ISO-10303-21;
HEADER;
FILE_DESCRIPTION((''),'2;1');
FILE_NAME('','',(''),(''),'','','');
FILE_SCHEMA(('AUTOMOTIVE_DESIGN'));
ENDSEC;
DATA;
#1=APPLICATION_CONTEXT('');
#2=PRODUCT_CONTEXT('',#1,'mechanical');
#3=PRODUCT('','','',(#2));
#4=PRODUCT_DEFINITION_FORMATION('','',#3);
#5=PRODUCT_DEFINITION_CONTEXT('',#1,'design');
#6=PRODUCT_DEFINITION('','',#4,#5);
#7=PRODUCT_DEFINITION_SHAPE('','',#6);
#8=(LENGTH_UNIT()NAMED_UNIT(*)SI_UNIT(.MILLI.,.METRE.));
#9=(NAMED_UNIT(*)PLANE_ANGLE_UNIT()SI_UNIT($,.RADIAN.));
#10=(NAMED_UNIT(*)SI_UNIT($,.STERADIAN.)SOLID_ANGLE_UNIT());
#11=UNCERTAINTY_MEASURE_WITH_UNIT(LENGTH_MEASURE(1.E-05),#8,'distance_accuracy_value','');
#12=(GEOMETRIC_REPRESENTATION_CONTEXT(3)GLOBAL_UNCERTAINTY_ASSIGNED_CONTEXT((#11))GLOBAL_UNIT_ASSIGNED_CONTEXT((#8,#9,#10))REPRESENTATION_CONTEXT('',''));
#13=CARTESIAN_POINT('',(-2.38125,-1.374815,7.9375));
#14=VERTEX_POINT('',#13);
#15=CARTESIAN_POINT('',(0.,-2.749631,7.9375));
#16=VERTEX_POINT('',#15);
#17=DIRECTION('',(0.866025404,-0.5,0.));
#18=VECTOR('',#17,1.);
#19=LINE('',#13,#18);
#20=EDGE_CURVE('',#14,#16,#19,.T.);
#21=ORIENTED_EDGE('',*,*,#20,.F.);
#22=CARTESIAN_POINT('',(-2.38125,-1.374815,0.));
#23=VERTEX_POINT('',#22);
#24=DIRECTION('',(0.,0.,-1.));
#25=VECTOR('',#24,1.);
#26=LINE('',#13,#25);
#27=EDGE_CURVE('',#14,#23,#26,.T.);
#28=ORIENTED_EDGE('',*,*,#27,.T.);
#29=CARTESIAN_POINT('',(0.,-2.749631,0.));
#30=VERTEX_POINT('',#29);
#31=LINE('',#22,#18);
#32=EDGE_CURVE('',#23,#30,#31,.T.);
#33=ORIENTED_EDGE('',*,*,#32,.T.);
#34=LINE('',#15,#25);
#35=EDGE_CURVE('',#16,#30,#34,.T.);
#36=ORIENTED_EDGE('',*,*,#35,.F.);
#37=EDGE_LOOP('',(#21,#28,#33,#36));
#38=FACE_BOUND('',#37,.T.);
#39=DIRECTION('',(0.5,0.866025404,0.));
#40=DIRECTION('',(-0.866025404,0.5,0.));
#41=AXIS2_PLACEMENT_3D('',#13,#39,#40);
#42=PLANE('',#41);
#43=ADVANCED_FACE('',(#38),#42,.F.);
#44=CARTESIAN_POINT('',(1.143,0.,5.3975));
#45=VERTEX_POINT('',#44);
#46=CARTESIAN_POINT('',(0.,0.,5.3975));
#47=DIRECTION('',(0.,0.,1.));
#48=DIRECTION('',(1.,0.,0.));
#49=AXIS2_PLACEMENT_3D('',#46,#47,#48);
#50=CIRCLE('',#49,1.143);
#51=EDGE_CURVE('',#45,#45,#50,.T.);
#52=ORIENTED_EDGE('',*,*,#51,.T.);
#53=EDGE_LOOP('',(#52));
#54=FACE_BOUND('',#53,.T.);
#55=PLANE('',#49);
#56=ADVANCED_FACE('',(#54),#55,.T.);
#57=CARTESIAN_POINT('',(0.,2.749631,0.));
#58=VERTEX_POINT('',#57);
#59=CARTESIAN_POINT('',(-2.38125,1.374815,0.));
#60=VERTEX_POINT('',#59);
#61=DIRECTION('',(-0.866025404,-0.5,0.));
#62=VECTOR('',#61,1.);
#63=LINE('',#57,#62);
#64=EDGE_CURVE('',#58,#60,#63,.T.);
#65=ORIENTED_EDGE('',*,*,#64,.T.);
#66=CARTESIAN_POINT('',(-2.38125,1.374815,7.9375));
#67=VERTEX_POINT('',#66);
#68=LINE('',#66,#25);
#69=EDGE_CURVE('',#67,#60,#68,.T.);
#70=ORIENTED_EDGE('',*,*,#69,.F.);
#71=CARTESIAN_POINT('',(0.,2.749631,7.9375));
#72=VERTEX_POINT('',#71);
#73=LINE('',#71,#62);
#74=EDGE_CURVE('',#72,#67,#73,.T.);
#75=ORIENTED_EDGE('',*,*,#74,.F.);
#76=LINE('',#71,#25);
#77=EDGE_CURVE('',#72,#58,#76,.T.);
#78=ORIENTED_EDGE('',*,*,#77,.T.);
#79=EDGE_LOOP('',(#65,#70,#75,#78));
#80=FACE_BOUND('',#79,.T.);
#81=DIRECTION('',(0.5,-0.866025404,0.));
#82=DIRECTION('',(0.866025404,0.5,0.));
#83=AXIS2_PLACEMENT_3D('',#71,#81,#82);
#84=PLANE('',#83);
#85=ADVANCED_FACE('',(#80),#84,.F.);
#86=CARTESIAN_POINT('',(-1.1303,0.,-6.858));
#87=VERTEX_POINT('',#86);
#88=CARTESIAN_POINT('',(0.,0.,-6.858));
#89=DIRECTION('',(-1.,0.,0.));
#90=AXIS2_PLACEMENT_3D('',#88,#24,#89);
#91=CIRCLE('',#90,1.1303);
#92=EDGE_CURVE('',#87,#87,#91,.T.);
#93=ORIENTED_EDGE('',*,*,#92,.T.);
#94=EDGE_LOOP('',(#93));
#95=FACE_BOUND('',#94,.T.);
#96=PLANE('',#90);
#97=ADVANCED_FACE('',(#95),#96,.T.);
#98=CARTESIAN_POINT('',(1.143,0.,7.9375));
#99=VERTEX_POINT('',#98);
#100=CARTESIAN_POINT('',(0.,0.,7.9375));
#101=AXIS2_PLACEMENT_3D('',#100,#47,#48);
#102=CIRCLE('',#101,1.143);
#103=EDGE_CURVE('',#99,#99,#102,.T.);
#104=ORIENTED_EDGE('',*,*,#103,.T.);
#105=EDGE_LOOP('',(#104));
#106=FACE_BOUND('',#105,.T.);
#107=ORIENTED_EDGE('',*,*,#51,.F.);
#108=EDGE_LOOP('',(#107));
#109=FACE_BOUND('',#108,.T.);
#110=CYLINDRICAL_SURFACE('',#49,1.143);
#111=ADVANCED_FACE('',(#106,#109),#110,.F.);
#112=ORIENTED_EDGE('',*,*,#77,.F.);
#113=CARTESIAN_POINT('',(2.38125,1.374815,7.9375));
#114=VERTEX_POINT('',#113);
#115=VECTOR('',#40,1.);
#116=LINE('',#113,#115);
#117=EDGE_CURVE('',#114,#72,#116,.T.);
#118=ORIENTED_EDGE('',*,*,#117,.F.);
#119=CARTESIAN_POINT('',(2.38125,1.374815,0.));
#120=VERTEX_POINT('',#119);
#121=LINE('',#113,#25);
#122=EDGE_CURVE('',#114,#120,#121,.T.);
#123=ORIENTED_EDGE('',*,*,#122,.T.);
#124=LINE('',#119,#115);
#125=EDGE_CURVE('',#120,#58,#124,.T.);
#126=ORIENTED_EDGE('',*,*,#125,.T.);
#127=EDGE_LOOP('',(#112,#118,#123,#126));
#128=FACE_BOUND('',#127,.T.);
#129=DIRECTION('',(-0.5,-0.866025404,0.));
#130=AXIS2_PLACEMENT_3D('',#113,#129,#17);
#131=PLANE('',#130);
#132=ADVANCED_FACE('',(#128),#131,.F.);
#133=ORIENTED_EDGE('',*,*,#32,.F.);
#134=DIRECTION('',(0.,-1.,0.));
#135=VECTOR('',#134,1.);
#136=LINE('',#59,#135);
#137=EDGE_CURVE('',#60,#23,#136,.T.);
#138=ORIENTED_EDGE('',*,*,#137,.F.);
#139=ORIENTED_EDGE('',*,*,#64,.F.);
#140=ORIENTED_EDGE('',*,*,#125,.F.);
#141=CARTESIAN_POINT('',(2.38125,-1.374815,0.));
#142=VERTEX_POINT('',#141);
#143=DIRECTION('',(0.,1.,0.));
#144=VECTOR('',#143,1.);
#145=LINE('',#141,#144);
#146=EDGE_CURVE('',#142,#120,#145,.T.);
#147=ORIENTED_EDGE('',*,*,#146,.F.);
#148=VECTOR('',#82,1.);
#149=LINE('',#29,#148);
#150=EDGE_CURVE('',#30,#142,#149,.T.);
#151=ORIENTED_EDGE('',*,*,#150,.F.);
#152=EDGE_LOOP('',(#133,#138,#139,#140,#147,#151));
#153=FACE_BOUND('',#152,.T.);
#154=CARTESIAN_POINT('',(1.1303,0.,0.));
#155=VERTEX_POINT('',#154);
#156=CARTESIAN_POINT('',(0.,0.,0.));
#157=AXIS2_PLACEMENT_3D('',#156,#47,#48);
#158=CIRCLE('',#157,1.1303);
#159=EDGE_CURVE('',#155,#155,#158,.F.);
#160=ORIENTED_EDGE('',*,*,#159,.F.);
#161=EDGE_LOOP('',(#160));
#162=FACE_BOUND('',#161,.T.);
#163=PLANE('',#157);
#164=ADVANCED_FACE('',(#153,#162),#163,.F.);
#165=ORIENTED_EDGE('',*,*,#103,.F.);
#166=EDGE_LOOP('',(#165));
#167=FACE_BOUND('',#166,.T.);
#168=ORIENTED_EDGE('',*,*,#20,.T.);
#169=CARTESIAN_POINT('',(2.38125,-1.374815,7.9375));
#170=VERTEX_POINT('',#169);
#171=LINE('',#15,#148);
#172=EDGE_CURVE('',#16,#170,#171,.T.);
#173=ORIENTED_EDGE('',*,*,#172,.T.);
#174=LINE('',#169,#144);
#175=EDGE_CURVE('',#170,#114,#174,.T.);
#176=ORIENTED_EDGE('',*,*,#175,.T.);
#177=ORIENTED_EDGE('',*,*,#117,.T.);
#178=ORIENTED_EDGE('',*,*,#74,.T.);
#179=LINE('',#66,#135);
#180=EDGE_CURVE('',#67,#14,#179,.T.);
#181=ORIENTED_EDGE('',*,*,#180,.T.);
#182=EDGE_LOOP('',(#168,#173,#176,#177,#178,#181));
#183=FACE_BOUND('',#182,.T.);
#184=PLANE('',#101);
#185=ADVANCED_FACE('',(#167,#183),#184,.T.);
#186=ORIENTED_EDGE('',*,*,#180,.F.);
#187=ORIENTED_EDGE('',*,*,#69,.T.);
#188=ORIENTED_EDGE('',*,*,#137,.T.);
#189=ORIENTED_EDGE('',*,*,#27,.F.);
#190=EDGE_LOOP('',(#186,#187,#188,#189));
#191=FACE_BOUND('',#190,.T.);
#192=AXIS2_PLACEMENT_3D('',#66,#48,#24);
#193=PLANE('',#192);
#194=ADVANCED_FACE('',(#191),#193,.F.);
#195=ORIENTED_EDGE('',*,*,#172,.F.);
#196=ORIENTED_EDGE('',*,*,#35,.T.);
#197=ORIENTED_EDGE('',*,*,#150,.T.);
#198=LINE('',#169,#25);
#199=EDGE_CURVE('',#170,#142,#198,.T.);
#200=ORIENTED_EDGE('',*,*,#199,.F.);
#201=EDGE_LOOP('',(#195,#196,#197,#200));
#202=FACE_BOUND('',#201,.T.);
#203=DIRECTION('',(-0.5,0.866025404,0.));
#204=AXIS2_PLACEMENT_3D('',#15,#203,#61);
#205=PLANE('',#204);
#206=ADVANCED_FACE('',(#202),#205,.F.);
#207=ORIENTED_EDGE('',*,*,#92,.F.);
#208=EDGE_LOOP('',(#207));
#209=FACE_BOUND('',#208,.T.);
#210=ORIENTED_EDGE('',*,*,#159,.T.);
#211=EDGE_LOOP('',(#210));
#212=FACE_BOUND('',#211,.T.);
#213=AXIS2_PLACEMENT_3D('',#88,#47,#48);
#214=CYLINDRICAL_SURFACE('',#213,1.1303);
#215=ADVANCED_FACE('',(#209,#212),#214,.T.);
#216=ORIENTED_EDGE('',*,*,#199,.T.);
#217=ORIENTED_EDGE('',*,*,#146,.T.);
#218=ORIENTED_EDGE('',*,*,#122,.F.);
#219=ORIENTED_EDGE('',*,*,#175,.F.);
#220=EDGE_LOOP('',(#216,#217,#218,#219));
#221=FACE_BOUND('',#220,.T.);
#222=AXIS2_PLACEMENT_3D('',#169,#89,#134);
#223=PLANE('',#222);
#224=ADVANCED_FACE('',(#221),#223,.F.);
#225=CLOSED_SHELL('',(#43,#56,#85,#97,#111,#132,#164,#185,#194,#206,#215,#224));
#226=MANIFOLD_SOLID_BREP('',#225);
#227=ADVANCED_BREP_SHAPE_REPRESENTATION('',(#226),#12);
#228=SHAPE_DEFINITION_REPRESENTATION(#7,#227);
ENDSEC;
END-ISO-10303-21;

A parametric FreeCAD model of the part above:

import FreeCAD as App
import Part
import Sketcher

V = App.Vector
Q = App.Units.Quantity


def add_polygon(sketch, points):
    """Adds a closed chain of lines whose ends are joined by coincident constraints."""
    first, n = sketch.GeometryCount, len(points)
    for a, b in zip(points, points[1:] + points[:1]):
        sketch.addGeometry(Part.LineSegment(App.Vector(*a, 0), App.Vector(*b, 0)), False)
    for i in range(n):
        sketch.addConstraint(Sketcher.Constraint("Coincident", first + i, 2, first + (i + 1) % n, 1))

doc = App.newDocument("Part")
body = doc.addObject("PartDesign::Body", "Body")

sketch1 = body.newObject("Sketcher::SketchObject", "Sketch")
sketch1.AttachmentSupport = (doc.getObject("XY_Plane"), [""])
sketch1.MapMode = "FlatFace"
add_polygon(sketch1, [(0, 2.7), (-2.4, 1.4), (-2.4, -1.4), (0, -2.7), (2.4, -1.4), (2.4, 1.4)])
sketch1.addConstraint([
    Sketcher.Constraint("Vertical", 1),
    Sketcher.Constraint("Vertical", 4),
    Sketcher.Constraint("Symmetric", 0, 2, 3, 2, -1, 1),
    Sketcher.Constraint("Symmetric", 2, 2, 5, 2, -1, 1),
    Sketcher.Constraint("PointOnObject", 2, 2, -2),
    Sketcher.Constraint("Parallel", 2, 5),
    Sketcher.Constraint("Horizontal", 1, 2, 3, 2),
    Sketcher.Constraint("Angle", 0, Q("-150 deg")),
    Sketcher.Constraint("DistanceX", 0, 2, -1, 1, Q("0.09375 in")),
    Sketcher.Constraint("DistanceY", 1, 2, 1, 1, 2.749631),
])
pad1 = body.newObject("PartDesign::Pad", "Pad")
pad1.Profile = sketch1
pad1.Length = Q("0.3125 in")

sketch2 = body.newObject("Sketcher::SketchObject", "Sketch001")
sketch2.AttachmentSupport = (doc.getObject("XY_Plane"), [""])
sketch2.MapMode = "FlatFace"
sketch2.addGeometry(Part.Circle(V(0, 0, 0), V(0, 0, 1), 1.1), False)
sketch2.addConstraint([
    Sketcher.Constraint("Coincident", 0, 3, -1, 1),
    Sketcher.Constraint("Diameter", 0, Q("0.089 in")),
])
pad2 = body.newObject("PartDesign::Pad", "Pad001")
pad2.Profile = sketch2
pad2.Length = Q("0.27 in")
pad2.Reversed = True

sketch3 = body.newObject("Sketcher::SketchObject", "Sketch002")
sketch3.AttachmentSupport = (doc.getObject("XY_Plane"), [""])
sketch3.MapMode = "FlatFace"
sketch3.AttachmentOffset = App.Placement(V(0, 0, 0.3125 * 25.4), App.Rotation())
sketch3.addGeometry(Part.Circle(V(0, 0, 0), V(0, 0, 1), 1.1), False)
sketch3.addConstraint([
    Sketcher.Constraint("Coincident", 0, 3, -1, 1),
    Sketcher.Constraint("Diameter", 0, Q("0.09 in")),
])
pocket1 = body.newObject("PartDesign::Pocket", "Pocket")
pocket1.Profile = sketch3
pocket1.Length = Q("0.1 in")

doc.recompute()
